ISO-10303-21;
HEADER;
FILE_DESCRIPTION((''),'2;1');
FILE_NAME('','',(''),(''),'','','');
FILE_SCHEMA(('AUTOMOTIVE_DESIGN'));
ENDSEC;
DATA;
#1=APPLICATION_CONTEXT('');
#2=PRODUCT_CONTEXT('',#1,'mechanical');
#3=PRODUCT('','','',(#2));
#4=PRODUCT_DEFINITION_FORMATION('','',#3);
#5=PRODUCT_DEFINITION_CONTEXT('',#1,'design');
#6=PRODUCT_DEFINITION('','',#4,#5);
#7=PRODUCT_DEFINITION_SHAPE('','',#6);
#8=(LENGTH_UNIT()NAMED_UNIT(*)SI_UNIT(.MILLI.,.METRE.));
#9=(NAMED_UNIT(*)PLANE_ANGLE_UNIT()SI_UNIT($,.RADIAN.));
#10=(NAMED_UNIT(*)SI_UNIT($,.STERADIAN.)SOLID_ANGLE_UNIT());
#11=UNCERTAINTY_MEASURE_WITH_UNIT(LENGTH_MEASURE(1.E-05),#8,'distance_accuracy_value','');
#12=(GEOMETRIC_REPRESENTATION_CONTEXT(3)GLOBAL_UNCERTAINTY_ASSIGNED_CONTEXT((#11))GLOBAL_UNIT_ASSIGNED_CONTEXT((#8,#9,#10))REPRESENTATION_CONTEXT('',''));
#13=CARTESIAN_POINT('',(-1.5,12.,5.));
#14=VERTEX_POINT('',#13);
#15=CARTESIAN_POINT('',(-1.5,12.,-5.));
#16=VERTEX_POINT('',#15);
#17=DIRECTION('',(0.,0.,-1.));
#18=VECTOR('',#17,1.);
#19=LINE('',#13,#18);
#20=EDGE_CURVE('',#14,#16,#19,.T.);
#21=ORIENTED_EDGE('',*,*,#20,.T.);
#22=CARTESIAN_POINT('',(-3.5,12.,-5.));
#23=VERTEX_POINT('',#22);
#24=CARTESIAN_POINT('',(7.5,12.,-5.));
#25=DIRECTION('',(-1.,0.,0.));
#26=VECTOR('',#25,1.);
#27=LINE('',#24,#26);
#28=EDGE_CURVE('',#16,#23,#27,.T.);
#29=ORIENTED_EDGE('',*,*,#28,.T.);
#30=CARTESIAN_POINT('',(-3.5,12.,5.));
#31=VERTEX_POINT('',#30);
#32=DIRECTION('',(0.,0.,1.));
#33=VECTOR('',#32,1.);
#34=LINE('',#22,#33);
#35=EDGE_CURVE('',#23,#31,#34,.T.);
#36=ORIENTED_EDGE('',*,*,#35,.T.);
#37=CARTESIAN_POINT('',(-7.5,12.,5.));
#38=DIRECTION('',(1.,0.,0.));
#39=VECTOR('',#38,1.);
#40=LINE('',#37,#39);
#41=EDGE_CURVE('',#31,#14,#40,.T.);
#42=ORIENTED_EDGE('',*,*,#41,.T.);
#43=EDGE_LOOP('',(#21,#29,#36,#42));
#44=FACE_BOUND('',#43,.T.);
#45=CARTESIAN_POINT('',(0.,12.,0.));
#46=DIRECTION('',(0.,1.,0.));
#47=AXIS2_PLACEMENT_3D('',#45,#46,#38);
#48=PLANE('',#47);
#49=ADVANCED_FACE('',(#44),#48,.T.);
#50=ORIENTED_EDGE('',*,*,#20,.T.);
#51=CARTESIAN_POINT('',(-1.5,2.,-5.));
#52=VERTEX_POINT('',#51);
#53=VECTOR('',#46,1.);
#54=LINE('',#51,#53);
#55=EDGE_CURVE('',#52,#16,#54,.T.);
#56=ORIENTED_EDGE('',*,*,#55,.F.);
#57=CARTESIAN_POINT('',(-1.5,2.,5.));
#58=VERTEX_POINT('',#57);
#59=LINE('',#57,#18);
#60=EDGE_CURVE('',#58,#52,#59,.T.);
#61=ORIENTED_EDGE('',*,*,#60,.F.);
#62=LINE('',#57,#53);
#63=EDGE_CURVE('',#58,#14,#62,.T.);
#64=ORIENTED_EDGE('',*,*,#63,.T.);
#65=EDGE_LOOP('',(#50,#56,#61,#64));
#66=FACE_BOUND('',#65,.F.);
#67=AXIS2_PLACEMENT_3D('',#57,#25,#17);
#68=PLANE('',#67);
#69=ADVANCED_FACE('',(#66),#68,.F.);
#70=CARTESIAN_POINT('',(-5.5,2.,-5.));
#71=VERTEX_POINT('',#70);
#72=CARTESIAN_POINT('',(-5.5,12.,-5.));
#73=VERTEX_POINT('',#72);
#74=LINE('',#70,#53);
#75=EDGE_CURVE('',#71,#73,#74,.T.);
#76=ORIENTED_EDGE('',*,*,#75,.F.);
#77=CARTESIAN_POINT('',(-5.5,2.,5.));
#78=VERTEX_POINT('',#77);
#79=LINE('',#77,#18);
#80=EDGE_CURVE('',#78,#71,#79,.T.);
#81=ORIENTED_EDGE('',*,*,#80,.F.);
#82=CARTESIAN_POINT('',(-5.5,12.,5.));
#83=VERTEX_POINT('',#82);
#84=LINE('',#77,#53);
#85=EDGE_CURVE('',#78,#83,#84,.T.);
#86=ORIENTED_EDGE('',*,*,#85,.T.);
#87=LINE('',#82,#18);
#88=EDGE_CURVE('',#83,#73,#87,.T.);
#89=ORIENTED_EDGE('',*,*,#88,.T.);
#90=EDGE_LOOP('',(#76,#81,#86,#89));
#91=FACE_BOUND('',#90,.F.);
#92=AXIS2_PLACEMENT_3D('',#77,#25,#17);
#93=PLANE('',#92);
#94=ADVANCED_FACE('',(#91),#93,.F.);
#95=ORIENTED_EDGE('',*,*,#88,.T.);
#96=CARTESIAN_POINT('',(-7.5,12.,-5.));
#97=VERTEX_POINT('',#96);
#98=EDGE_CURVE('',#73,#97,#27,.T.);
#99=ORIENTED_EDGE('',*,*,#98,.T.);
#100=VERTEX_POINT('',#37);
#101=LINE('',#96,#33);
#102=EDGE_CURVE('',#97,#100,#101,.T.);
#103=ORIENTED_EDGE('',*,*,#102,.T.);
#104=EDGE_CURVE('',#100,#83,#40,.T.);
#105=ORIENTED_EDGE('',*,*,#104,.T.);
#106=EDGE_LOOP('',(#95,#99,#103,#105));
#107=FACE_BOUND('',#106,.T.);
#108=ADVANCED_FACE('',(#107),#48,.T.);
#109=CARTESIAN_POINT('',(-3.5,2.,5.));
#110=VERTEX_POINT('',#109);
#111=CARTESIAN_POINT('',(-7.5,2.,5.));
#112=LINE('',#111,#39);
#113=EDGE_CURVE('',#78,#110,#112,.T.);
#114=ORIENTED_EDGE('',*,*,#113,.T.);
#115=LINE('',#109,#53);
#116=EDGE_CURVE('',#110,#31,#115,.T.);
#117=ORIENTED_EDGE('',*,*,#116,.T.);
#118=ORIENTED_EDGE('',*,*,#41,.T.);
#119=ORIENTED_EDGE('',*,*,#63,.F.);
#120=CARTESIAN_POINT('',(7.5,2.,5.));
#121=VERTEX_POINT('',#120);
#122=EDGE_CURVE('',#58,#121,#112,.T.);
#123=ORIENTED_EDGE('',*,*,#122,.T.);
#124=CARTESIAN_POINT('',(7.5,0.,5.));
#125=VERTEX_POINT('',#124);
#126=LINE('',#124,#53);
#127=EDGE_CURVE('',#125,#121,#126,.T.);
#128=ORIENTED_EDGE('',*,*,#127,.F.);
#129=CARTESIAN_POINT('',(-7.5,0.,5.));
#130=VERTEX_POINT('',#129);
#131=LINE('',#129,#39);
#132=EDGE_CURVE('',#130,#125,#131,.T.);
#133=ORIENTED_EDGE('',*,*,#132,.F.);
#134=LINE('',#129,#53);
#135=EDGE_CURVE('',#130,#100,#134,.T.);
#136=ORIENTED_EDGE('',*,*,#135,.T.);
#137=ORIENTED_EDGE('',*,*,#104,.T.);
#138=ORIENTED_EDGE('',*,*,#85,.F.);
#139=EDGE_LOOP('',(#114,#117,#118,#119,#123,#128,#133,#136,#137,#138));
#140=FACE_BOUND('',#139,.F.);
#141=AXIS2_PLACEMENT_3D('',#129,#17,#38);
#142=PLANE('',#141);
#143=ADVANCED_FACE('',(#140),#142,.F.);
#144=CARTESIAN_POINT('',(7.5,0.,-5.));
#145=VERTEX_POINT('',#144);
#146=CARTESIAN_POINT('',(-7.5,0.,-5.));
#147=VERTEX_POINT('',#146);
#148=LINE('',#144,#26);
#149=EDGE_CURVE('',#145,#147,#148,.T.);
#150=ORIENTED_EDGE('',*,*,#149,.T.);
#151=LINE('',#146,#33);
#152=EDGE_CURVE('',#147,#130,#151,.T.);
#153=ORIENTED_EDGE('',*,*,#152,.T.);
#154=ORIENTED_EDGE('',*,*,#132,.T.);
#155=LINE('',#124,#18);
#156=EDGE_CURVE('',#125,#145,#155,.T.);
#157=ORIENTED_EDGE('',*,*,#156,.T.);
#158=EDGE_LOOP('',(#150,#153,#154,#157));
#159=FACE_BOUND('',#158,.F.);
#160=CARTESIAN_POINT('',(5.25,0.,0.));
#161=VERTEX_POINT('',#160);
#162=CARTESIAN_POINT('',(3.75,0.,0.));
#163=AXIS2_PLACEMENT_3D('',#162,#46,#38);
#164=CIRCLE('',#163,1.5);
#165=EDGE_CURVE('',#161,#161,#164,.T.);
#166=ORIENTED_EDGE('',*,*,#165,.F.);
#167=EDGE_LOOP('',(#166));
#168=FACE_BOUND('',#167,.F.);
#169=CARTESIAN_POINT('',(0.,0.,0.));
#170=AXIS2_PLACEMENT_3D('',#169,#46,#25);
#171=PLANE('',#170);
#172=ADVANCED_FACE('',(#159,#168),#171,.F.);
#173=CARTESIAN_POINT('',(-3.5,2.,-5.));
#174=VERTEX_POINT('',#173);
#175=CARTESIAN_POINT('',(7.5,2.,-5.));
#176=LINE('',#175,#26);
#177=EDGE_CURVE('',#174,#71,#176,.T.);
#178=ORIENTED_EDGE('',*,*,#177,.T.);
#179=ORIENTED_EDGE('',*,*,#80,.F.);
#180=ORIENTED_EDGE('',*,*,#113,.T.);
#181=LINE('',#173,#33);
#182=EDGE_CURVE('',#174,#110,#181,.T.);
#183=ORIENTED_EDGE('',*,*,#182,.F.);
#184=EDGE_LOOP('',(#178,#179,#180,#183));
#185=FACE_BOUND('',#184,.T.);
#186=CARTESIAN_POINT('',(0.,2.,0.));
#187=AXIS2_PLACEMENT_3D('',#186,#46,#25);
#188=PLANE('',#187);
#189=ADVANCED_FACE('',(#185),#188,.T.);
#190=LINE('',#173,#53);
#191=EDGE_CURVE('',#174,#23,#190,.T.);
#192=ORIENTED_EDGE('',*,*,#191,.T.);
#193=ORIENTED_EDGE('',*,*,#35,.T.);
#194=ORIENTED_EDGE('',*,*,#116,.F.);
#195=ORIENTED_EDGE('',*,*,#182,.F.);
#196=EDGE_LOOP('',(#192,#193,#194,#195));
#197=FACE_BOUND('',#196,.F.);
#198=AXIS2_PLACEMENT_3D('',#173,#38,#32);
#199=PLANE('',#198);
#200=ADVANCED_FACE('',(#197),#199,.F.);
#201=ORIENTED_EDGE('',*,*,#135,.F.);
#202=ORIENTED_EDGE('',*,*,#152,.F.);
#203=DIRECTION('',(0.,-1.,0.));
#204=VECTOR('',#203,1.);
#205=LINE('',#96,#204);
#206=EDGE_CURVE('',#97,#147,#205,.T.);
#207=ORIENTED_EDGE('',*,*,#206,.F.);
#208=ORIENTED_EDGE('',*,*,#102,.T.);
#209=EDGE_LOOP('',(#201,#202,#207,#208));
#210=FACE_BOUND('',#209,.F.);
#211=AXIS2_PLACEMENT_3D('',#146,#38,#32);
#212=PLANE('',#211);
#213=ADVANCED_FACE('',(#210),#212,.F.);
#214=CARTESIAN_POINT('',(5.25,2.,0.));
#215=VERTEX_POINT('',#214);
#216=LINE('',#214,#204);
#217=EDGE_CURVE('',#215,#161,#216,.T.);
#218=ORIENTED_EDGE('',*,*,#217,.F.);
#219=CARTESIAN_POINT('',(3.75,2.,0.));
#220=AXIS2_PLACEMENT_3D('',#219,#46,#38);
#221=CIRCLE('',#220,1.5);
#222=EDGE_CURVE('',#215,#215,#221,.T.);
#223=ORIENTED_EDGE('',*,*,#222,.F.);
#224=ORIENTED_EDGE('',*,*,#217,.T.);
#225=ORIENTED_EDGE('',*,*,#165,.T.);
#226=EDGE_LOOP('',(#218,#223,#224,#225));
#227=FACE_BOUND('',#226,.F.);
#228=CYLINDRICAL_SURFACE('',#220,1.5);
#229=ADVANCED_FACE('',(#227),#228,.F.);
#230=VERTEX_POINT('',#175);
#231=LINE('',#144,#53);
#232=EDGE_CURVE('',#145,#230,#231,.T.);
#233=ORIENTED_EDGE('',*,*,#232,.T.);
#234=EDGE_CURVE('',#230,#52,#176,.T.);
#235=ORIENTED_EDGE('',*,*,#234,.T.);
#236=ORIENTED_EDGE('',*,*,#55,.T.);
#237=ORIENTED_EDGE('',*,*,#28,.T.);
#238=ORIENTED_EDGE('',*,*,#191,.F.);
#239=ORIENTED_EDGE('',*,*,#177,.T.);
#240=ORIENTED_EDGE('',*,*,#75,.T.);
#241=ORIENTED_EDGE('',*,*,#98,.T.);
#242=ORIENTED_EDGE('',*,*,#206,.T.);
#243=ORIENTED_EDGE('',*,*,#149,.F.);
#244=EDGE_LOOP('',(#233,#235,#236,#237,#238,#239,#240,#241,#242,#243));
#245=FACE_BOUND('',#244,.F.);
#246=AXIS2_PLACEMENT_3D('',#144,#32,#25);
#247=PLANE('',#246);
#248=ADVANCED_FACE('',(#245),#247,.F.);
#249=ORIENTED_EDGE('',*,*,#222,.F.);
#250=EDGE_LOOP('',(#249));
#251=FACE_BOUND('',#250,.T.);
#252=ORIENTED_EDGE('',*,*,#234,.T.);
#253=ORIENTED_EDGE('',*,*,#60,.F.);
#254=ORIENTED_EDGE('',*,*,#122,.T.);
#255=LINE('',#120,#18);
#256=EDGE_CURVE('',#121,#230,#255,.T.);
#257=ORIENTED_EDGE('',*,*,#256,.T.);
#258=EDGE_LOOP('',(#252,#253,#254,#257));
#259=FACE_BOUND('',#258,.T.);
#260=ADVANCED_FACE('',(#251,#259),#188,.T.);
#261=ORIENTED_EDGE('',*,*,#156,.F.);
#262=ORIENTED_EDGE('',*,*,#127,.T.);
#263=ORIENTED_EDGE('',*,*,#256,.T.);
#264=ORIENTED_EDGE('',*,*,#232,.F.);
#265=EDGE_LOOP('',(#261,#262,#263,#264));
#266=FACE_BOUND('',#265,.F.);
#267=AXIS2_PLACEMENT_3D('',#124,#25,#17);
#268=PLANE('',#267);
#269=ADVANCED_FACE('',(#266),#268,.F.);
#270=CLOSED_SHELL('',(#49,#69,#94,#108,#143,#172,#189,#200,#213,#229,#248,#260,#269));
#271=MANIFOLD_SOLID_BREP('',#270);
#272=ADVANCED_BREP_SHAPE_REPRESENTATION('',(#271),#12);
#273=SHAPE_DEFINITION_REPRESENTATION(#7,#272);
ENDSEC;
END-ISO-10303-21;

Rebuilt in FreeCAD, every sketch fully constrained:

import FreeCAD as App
import Part
import Sketcher

V = App.Vector
Q = App.Units.Quantity

doc = App.newDocument("Part")
body = doc.addObject("PartDesign::Body", "Body")

# Sketch on XZ plane
sketch1 = body.newObject("Sketcher::SketchObject", "Sketch")
sketch1.AttachmentSupport = (doc.getObject("XZ_Plane"), [""])
sketch1.MapMode = "FlatFace"
sketch1.addGeometry(Part.LineSegment(V(-7.5, -5, 0), V(-7.5, 5, 0)), False)
sketch1.addGeometry(Part.LineSegment(V(-7.5, 5, 0), V(7.5, 5, 0)), False)
sketch1.addGeometry(Part.LineSegment(V(7.5, 5, 0), V(7.5, -5, 0)), False)
sketch1.addGeometry(Part.LineSegment(V(7.5, -5, 0), V(-7.5, -5, 0)), False)
sketch1.addConstraint(Sketcher.Constraint("Coincident", 0, 2, 1, 1))
sketch1.addConstraint(Sketcher.Constraint("Coincident", 1, 2, 2, 1))
sketch1.addConstraint(Sketcher.Constraint("Coincident", 2, 2, 3, 1))
sketch1.addConstraint(Sketcher.Constraint("Coincident", 3, 2, 0, 1))
sketch1.addConstraint(Sketcher.Constraint("Vertical", 0))
sketch1.addConstraint(Sketcher.Constraint("Horizontal", 1))
sketch1.addConstraint(Sketcher.Constraint("Vertical", 2))
sketch1.addConstraint(Sketcher.Constraint("Horizontal", 3))
sketch1.addConstraint(Sketcher.Constraint("Symmetric", 0, 2, 2, 2, -1, 1))
sketch1.addConstraint(Sketcher.Constraint("DistanceX", 1, 1, 1, 2, Q("15 mm")))
sketch1.addConstraint(Sketcher.Constraint("DistanceY", 0, 1, 0, 2, Q("10 mm")))
pad1 = body.newObject("PartDesign::Pad", "Pad")
pad1.Profile = sketch1
pad1.Length = 2
pad1.Reversed = True

# Sketch on XZ plane
sketch2 = body.newObject("Sketcher::SketchObject", "Sketch001")
sketch2.AttachmentSupport = (doc.getObject("XZ_Plane"), [""])
sketch2.MapMode = "FlatFace"
sketch2.AttachmentOffset = App.Placement(V(0, 0, -2), App.Rotation())
sketch2.addGeometry(Part.LineSegment(V(-5.5, -5, 0), V(-7.5, -5, 0)), False)
sketch2.addGeometry(Part.LineSegment(V(-7.5, -5, 0), V(-7.5, 5, 0)), False)
sketch2.addGeometry(Part.LineSegment(V(-7.5, 5, 0), V(-5.5, 5, 0)), False)
sketch2.addGeometry(Part.LineSegment(V(-5.5, 5, 0), V(-5.5, -5, 0)), False)
sketch2.addGeometry(Part.LineSegment(V(-1.5, -5, 0), V(-3.5, -5, 0)), False)
sketch2.addGeometry(Part.LineSegment(V(-3.5, -5, 0), V(-3.5, 5, 0)), False)
sketch2.addGeometry(Part.LineSegment(V(-3.5, 5, 0), V(-1.5, 5, 0)), False)
sketch2.addGeometry(Part.LineSegment(V(-1.5, 5, 0), V(-1.5, -5, 0)), False)
sketch2.addConstraint(Sketcher.Constraint("Coincident", 0, 2, 1, 1))
sketch2.addConstraint(Sketcher.Constraint("Coincident", 1, 2, 2, 1))
sketch2.addConstraint(Sketcher.Constraint("Coincident", 2, 2, 3, 1))
sketch2.addConstraint(Sketcher.Constraint("Coincident", 3, 2, 0, 1))
sketch2.addConstraint(Sketcher.Constraint("Coincident", 4, 2, 5, 1))
sketch2.addConstraint(Sketcher.Constraint("Coincident", 5, 2, 6, 1))
sketch2.addConstraint(Sketcher.Constraint("Coincident", 6, 2, 7, 1))
sketch2.addConstraint(Sketcher.Constraint("Coincident", 7, 2, 4, 1))
sketch2.addConstraint(Sketcher.Constraint("Horizontal", 0))
sketch2.addConstraint(Sketcher.Constraint("Vertical", 1))
sketch2.addConstraint(Sketcher.Constraint("Horizontal", 2))
sketch2.addConstraint(Sketcher.Constraint("Vertical", 3))
sketch2.addConstraint(Sketcher.Constraint("Horizontal", 4))
sketch2.addConstraint(Sketcher.Constraint("Vertical", 5))
sketch2.addConstraint(Sketcher.Constraint("Horizontal", 6))
sketch2.addConstraint(Sketcher.Constraint("Vertical", 7))
sketch2.addConstraint(Sketcher.Constraint("Horizontal", 3, 2, 4, 2))
sketch2.addConstraint(Sketcher.Constraint("Horizontal", 2, 2, 5, 2))
sketch2.addConstraint(Sketcher.Constraint("Equal", 2, 4))
sketch2.addConstraint(Sketcher.Constraint("DistanceX", 0, 2, 0, 1, Q("2 mm")))
sketch2.addConstraint(Sketcher.Constraint("DistanceX", 3, 2, 4, 2, Q("2 mm")))
sketch2.addConstraint(Sketcher.Constraint("DistanceY", 1, 1, 1, 2, Q("10 mm")))
sketch2.addConstraint(Sketcher.Constraint("DistanceY", 0, 2, -1, 1, Q("5 mm")))
sketch2.addConstraint(Sketcher.Constraint("DistanceX", 0, 2, -1, 1, Q("7.5 mm")))
pad2 = body.newObject("PartDesign::Pad", "Pad001")
pad2.Profile = sketch2
pad2.Length = 10
pad2.Reversed = True

# Sketch on XZ plane
sketch3 = body.newObject("Sketcher::SketchObject", "Sketch002")
sketch3.AttachmentSupport = (doc.getObject("XZ_Plane"), [""])
sketch3.MapMode = "FlatFace"
sketch3.AttachmentOffset = App.Placement(V(0, 0, -2), App.Rotation())
sketch3.addGeometry(Part.Circle(V(3.75, 0, 0), V(0, 0, 1), 1.5), False)
sketch3.addConstraint(Sketcher.Constraint("PointOnObject", 0, 3, -1))
sketch3.addConstraint(Sketcher.Constraint("Diameter", 0, Q("3 mm")))
sketch3.addConstraint(Sketcher.Constraint("DistanceX", -1, 1, 0, 3, Q("3.75 mm")))
pocket1 = body.newObject("PartDesign::Pocket", "Pocket")
pocket1.Profile = sketch3
pocket1.Length = 10
pocket1.Reversed = True

doc.recompute()
